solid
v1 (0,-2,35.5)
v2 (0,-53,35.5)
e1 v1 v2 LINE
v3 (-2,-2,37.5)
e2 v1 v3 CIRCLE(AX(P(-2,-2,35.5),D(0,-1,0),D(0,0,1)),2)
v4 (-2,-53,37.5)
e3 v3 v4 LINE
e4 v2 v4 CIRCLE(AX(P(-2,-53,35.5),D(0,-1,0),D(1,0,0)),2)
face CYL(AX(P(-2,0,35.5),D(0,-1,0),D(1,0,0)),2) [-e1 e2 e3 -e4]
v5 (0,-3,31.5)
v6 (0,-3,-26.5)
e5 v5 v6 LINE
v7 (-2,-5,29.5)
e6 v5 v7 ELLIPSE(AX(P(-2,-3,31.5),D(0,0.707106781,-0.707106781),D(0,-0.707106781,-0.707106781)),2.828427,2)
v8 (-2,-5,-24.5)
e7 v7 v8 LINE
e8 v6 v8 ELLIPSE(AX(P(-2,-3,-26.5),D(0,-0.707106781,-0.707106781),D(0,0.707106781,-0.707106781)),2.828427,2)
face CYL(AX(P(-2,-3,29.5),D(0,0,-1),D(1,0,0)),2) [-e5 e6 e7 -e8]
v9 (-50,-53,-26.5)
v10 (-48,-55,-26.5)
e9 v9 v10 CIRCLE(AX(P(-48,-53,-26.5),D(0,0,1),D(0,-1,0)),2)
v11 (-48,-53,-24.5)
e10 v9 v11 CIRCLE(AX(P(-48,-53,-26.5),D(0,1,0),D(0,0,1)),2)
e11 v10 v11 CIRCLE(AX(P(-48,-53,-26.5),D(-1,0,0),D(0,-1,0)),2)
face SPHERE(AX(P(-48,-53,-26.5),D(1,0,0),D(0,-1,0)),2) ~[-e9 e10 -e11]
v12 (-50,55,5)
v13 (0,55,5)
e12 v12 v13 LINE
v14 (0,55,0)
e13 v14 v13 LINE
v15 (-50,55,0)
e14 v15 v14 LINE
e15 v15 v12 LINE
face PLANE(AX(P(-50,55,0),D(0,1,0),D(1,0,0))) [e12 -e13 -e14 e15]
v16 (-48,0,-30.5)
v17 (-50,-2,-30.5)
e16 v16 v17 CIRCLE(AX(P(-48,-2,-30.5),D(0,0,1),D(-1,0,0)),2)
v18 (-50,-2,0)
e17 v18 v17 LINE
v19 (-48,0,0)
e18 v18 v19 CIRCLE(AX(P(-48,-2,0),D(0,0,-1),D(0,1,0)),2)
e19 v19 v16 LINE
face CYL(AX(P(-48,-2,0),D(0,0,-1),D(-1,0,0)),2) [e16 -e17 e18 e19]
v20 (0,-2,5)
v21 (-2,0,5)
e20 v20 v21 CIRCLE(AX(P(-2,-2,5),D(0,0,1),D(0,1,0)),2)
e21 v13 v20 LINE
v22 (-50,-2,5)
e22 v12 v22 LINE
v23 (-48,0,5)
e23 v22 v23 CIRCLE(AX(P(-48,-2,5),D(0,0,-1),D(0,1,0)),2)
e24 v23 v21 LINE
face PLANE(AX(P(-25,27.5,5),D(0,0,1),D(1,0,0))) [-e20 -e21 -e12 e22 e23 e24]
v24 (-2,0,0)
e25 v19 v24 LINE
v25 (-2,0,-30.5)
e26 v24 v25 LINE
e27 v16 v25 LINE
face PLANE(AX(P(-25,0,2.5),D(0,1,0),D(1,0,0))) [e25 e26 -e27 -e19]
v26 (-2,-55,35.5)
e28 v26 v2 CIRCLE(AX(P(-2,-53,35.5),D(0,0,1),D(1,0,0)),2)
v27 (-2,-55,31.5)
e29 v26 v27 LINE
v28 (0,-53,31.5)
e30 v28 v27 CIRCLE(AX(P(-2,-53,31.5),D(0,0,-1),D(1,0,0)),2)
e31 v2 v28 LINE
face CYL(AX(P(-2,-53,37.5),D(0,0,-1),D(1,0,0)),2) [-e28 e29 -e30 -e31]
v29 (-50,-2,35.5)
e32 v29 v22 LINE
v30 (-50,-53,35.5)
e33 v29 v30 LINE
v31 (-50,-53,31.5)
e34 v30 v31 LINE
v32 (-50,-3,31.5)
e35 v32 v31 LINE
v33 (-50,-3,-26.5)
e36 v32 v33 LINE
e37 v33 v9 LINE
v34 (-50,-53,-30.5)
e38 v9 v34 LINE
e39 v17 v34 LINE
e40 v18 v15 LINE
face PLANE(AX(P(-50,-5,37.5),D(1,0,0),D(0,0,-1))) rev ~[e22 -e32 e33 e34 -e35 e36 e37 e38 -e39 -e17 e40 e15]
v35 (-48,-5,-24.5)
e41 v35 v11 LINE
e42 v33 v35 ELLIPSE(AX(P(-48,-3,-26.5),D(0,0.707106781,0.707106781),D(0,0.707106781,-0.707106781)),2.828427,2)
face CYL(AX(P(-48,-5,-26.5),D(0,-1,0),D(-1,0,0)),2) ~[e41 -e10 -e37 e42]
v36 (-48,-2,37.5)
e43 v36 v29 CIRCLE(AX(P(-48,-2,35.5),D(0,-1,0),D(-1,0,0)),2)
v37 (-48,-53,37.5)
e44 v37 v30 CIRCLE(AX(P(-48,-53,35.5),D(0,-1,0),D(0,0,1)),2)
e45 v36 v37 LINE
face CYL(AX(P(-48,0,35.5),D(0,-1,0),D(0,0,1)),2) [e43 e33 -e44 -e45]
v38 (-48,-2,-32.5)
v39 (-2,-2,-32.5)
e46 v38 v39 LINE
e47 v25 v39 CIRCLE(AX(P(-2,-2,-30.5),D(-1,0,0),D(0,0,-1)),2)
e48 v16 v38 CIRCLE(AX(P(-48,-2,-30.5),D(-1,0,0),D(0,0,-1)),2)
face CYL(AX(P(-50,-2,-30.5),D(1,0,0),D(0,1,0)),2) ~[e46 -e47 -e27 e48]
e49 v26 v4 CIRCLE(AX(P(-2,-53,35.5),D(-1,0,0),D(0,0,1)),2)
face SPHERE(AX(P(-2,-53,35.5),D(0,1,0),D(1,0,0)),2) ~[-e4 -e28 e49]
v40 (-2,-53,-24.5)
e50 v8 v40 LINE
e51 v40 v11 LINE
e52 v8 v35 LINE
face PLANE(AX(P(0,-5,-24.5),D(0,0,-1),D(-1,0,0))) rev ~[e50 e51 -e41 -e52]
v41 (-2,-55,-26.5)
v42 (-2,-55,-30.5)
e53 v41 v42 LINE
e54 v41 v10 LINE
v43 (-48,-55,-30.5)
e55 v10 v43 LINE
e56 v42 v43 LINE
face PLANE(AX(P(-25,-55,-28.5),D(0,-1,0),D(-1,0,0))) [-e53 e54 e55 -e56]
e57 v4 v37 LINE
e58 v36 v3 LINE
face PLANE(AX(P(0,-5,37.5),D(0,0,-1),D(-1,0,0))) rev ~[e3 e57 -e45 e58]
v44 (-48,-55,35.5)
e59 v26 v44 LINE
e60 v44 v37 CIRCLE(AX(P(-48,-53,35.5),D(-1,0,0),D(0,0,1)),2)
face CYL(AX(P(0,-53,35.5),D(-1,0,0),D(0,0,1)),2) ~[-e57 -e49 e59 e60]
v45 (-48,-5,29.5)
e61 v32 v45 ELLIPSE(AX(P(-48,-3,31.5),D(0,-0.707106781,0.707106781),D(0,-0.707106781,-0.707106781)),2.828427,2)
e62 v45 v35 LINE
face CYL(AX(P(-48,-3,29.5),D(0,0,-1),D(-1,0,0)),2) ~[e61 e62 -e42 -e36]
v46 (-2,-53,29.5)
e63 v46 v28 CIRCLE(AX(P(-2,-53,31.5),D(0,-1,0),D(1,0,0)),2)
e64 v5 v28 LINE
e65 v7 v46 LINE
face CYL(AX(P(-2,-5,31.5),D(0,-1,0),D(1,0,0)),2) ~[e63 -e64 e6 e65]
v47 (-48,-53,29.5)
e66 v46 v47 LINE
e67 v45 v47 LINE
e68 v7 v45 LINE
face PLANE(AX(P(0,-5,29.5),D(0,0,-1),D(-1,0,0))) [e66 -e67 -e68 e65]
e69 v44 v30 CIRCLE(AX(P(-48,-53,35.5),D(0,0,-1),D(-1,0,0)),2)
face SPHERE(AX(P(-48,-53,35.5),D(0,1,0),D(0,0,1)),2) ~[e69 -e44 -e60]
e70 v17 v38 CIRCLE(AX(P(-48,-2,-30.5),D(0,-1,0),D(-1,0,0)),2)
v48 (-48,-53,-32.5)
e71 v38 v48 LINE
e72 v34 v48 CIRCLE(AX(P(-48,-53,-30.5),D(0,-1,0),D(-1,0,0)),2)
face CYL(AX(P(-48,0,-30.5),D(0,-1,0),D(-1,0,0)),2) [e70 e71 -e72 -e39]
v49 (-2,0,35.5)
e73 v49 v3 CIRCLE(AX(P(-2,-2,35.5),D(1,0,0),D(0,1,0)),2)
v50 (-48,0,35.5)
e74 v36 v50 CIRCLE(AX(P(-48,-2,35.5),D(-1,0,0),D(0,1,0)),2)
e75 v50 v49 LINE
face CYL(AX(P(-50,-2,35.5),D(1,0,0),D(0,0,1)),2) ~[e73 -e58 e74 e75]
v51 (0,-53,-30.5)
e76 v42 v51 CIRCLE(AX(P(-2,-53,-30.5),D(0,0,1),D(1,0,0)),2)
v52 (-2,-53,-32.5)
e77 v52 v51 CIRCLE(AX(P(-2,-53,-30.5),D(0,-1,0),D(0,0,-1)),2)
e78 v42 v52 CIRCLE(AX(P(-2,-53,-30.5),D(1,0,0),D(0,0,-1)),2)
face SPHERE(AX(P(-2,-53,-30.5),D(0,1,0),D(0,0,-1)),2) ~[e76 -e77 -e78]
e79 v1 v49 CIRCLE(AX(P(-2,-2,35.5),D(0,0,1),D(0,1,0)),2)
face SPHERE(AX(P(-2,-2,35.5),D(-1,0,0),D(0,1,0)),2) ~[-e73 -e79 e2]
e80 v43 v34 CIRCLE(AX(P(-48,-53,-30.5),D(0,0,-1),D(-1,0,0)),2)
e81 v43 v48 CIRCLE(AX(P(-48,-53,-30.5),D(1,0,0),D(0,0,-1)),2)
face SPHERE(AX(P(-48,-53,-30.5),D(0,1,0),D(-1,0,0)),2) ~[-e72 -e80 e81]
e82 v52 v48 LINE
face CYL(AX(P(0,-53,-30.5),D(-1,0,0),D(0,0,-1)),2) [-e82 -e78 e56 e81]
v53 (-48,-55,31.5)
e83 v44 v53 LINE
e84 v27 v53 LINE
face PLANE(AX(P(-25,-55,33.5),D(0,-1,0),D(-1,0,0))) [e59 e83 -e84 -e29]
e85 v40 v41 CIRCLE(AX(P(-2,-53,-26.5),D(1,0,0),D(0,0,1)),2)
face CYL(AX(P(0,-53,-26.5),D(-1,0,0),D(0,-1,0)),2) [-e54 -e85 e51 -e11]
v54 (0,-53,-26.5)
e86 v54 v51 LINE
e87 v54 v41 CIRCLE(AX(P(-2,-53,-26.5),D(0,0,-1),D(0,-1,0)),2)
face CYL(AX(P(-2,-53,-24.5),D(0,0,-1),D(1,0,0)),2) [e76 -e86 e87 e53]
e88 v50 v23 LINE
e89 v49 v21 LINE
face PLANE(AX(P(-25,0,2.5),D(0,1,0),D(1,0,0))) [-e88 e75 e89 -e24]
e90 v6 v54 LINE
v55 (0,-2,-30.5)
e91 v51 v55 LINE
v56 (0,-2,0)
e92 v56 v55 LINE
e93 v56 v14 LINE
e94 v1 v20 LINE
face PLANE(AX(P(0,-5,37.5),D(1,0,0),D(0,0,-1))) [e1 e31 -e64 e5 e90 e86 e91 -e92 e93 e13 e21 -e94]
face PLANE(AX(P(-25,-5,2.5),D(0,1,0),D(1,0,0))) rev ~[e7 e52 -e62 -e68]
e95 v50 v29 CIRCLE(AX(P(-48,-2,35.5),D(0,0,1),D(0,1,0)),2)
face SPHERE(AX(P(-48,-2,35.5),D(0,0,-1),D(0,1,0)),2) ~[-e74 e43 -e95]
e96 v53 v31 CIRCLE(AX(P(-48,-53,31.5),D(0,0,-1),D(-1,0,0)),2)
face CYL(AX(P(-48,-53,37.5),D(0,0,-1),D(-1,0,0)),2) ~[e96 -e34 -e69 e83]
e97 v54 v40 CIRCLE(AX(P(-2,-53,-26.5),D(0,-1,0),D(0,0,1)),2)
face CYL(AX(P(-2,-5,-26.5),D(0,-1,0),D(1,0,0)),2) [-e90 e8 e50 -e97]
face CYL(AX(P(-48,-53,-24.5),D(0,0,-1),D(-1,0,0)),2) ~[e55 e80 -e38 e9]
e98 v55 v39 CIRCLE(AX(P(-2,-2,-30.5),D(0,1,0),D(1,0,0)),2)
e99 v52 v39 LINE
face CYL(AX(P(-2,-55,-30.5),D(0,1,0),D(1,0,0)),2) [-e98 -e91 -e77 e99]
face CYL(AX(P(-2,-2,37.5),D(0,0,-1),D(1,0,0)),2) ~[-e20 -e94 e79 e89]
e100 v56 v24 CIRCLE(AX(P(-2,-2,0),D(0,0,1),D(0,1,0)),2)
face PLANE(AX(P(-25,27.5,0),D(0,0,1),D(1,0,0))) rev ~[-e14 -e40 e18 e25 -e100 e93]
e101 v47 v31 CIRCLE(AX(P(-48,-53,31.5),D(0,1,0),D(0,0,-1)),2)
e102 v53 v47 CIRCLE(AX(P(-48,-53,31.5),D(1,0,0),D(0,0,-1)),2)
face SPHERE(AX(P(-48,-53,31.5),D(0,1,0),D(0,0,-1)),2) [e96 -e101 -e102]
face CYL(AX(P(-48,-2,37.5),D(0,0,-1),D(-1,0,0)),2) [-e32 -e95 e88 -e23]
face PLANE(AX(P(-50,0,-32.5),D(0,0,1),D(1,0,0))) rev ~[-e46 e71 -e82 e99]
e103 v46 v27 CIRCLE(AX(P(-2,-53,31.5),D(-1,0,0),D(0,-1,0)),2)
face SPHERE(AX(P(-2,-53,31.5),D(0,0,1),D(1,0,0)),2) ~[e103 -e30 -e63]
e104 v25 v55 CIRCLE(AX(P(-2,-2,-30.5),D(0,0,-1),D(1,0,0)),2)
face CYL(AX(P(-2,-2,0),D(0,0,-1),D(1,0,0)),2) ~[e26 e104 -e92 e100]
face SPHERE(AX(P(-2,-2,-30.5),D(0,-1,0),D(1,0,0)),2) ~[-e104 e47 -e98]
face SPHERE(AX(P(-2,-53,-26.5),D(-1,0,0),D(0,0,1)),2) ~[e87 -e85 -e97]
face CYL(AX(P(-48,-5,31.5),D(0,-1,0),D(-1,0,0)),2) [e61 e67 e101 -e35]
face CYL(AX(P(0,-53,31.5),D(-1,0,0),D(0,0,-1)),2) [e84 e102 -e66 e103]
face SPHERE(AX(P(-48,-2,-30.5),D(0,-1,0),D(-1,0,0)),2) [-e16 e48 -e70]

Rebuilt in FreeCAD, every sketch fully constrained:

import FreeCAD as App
import Part
import Sketcher

V = App.Vector


def edges_at(feature, points):
    """Names of the edges that pass closest to the given points."""
    edges = feature.Shape.Edges
    near = lambda p: min(range(len(edges)), key=lambda i: edges[i].distToShape(Part.Vertex(*p))[0])
    return sorted({f"Edge{near(p) + 1}" for p in points})


def add_polygon(sketch, points):
    """Adds a closed chain of lines whose ends are joined by coincident constraints."""
    first, n = sketch.GeometryCount, len(points)
    for a, b in zip(points, points[1:] + points[:1]):
        sketch.addGeometry(Part.LineSegment(App.Vector(*a, 0), App.Vector(*b, 0)), False)
    for i in range(n):
        sketch.addConstraint(Sketcher.Constraint("Coincident", first + i, 2, first + (i + 1) % n, 1))

doc = App.newDocument("Part")
body = doc.addObject("PartDesign::Body", "Body")

sketch1 = body.newObject("Sketcher::SketchObject", "Sketch")
sketch1.AttachmentSupport = (doc.getObject("XY_Plane"), [""])
sketch1.MapMode = "FlatFace"
add_polygon(sketch1, [(-50, 55), (-50, 0), (0, 0), (0, 55)])
sketch1.addConstraint(Sketcher.Constraint("Vertical", 0))
sketch1.addConstraint(Sketcher.Constraint("Horizontal", 1))
sketch1.addConstraint(Sketcher.Constraint("Vertical", 2))
sketch1.addConstraint(Sketcher.Constraint("Horizontal", 3))
sketch1.addConstraint(Sketcher.Constraint("Coincident", 1, 2, -1, 1))
sketch1.addConstraint(Sketcher.Constraint("DistanceX", 1, 1, 1, 2, 50.0))
sketch1.addConstraint(Sketcher.Constraint("DistanceY", 0, 2, 0, 1, 55.0))
pad1 = body.newObject("PartDesign::Pad", "Pad")
pad1.Profile = sketch1
pad1.Length = 5

sketch2 = body.newObject("Sketcher::SketchObject", "Sketch001")
sketch2.AttachmentSupport = (doc.getObject("XZ_Plane"), [""])
sketch2.MapMode = "FlatFace"
add_polygon(sketch2, [(-50, -32), (-50, 38), (0, 38), (0, -32)])
sketch2.addConstraint(Sketcher.Constraint("Vertical", 0))
sketch2.addConstraint(Sketcher.Constraint("Horizontal", 1))
sketch2.addConstraint(Sketcher.Constraint("Vertical", 2))
sketch2.addConstraint(Sketcher.Constraint("Horizontal", 3))
sketch2.addConstraint(Sketcher.Constraint("PointOnObject", 1, 2, -2))
sketch2.addConstraint(Sketcher.Constraint("DistanceX", 1, 1, 1, 2, 50.0))
sketch2.addConstraint(Sketcher.Constraint("DistanceY", 0, 1, 0, 2, 70.0))
sketch2.addConstraint(Sketcher.Constraint("DistanceY", -1, 1, 0, 2, 37.5))
pad2 = body.newObject("PartDesign::Pad", "Pad001")
pad2.Profile = sketch2
pad2.Length = 5

sketch3 = body.newObject("Sketcher::SketchObject", "Sketch002")
sketch3.AttachmentSupport = (doc.getObject("XZ_Plane"), [""])
sketch3.MapMode = "FlatFace"
sketch3.AttachmentOffset = App.Placement(V(0, 0, 5), App.Rotation())
add_polygon(sketch3, [(0, 30), (0, 38), (-50, 38), (-50, 30)])
add_polygon(sketch3, [(0, -32), (0, -24), (-50, -24), (-50, -32)])
sketch3.addConstraint(Sketcher.Constraint("Vertical", 0))
sketch3.addConstraint(Sketcher.Constraint("Horizontal", 1))
sketch3.addConstraint(Sketcher.Constraint("Vertical", 2))
sketch3.addConstraint(Sketcher.Constraint("Horizontal", 3))
sketch3.addConstraint(Sketcher.Constraint("Vertical", 4))
sketch3.addConstraint(Sketcher.Constraint("Horizontal", 5))
sketch3.addConstraint(Sketcher.Constraint("Vertical", 6))
sketch3.addConstraint(Sketcher.Constraint("Horizontal", 7))
sketch3.addConstraint(Sketcher.Constraint("PointOnObject", 0, 2, -2))
sketch3.addConstraint(Sketcher.Constraint("PointOnObject", 4, 2, -2))
sketch3.addConstraint(Sketcher.Constraint("Vertical", 2, 2, 5, 2))
sketch3.addConstraint(Sketcher.Constraint("Equal", 2, 4))
sketch3.addConstraint(Sketcher.Constraint("DistanceX", 1, 2, 1, 1, 50.0))
sketch3.addConstraint(Sketcher.Constraint("DistanceY", 0, 1, 0, 2, 8.0))
sketch3.addConstraint(Sketcher.Constraint("DistanceY", 4, 2, 3, 2, 54.0))
sketch3.addConstraint(Sketcher.Constraint("DistanceY", -1, 1, 0, 2, 37.5))
pad3 = body.newObject("PartDesign::Pad", "Pad002")
pad3.Profile = sketch3
pad3.Length = 50
doc.recompute()

fillet = body.newObject("PartDesign::Fillet", "Fillet")
fillet.Base = (pad3, edges_at(pad3, [
    (-50, 0, 21.25),
    (-25, 0, 37.5),
    (0, 0, 21.25),
    (-50, -27.5, 37.5),
    (-50, -27.5, -32.5),
    (0, -27.5, -32.5),
    (0, -27.5, 37.5),
    (-50, 0, -16.25),
    (0, 0, -16.25),
    (-25, 0, -32.5),
    (0, -5, 2.5),
    (-50, -30, 29.5),
    (0, -55, 33.5),
    (0, -30, 29.5),
    (-25, -55, 37.5),
    (-25, -55, 29.5),
    (-50, -55, 33.5),
    (-50, -5, 2.5),
    (-25, -55, -24.5),
    (0, -30, -24.5),
    (-50, -55, -28.5),
    (-50, -30, -24.5),
    (-25, -55, -32.5),
    (0, -55, -28.5),
]))
fillet.Radius = 2

doc.recompute()
